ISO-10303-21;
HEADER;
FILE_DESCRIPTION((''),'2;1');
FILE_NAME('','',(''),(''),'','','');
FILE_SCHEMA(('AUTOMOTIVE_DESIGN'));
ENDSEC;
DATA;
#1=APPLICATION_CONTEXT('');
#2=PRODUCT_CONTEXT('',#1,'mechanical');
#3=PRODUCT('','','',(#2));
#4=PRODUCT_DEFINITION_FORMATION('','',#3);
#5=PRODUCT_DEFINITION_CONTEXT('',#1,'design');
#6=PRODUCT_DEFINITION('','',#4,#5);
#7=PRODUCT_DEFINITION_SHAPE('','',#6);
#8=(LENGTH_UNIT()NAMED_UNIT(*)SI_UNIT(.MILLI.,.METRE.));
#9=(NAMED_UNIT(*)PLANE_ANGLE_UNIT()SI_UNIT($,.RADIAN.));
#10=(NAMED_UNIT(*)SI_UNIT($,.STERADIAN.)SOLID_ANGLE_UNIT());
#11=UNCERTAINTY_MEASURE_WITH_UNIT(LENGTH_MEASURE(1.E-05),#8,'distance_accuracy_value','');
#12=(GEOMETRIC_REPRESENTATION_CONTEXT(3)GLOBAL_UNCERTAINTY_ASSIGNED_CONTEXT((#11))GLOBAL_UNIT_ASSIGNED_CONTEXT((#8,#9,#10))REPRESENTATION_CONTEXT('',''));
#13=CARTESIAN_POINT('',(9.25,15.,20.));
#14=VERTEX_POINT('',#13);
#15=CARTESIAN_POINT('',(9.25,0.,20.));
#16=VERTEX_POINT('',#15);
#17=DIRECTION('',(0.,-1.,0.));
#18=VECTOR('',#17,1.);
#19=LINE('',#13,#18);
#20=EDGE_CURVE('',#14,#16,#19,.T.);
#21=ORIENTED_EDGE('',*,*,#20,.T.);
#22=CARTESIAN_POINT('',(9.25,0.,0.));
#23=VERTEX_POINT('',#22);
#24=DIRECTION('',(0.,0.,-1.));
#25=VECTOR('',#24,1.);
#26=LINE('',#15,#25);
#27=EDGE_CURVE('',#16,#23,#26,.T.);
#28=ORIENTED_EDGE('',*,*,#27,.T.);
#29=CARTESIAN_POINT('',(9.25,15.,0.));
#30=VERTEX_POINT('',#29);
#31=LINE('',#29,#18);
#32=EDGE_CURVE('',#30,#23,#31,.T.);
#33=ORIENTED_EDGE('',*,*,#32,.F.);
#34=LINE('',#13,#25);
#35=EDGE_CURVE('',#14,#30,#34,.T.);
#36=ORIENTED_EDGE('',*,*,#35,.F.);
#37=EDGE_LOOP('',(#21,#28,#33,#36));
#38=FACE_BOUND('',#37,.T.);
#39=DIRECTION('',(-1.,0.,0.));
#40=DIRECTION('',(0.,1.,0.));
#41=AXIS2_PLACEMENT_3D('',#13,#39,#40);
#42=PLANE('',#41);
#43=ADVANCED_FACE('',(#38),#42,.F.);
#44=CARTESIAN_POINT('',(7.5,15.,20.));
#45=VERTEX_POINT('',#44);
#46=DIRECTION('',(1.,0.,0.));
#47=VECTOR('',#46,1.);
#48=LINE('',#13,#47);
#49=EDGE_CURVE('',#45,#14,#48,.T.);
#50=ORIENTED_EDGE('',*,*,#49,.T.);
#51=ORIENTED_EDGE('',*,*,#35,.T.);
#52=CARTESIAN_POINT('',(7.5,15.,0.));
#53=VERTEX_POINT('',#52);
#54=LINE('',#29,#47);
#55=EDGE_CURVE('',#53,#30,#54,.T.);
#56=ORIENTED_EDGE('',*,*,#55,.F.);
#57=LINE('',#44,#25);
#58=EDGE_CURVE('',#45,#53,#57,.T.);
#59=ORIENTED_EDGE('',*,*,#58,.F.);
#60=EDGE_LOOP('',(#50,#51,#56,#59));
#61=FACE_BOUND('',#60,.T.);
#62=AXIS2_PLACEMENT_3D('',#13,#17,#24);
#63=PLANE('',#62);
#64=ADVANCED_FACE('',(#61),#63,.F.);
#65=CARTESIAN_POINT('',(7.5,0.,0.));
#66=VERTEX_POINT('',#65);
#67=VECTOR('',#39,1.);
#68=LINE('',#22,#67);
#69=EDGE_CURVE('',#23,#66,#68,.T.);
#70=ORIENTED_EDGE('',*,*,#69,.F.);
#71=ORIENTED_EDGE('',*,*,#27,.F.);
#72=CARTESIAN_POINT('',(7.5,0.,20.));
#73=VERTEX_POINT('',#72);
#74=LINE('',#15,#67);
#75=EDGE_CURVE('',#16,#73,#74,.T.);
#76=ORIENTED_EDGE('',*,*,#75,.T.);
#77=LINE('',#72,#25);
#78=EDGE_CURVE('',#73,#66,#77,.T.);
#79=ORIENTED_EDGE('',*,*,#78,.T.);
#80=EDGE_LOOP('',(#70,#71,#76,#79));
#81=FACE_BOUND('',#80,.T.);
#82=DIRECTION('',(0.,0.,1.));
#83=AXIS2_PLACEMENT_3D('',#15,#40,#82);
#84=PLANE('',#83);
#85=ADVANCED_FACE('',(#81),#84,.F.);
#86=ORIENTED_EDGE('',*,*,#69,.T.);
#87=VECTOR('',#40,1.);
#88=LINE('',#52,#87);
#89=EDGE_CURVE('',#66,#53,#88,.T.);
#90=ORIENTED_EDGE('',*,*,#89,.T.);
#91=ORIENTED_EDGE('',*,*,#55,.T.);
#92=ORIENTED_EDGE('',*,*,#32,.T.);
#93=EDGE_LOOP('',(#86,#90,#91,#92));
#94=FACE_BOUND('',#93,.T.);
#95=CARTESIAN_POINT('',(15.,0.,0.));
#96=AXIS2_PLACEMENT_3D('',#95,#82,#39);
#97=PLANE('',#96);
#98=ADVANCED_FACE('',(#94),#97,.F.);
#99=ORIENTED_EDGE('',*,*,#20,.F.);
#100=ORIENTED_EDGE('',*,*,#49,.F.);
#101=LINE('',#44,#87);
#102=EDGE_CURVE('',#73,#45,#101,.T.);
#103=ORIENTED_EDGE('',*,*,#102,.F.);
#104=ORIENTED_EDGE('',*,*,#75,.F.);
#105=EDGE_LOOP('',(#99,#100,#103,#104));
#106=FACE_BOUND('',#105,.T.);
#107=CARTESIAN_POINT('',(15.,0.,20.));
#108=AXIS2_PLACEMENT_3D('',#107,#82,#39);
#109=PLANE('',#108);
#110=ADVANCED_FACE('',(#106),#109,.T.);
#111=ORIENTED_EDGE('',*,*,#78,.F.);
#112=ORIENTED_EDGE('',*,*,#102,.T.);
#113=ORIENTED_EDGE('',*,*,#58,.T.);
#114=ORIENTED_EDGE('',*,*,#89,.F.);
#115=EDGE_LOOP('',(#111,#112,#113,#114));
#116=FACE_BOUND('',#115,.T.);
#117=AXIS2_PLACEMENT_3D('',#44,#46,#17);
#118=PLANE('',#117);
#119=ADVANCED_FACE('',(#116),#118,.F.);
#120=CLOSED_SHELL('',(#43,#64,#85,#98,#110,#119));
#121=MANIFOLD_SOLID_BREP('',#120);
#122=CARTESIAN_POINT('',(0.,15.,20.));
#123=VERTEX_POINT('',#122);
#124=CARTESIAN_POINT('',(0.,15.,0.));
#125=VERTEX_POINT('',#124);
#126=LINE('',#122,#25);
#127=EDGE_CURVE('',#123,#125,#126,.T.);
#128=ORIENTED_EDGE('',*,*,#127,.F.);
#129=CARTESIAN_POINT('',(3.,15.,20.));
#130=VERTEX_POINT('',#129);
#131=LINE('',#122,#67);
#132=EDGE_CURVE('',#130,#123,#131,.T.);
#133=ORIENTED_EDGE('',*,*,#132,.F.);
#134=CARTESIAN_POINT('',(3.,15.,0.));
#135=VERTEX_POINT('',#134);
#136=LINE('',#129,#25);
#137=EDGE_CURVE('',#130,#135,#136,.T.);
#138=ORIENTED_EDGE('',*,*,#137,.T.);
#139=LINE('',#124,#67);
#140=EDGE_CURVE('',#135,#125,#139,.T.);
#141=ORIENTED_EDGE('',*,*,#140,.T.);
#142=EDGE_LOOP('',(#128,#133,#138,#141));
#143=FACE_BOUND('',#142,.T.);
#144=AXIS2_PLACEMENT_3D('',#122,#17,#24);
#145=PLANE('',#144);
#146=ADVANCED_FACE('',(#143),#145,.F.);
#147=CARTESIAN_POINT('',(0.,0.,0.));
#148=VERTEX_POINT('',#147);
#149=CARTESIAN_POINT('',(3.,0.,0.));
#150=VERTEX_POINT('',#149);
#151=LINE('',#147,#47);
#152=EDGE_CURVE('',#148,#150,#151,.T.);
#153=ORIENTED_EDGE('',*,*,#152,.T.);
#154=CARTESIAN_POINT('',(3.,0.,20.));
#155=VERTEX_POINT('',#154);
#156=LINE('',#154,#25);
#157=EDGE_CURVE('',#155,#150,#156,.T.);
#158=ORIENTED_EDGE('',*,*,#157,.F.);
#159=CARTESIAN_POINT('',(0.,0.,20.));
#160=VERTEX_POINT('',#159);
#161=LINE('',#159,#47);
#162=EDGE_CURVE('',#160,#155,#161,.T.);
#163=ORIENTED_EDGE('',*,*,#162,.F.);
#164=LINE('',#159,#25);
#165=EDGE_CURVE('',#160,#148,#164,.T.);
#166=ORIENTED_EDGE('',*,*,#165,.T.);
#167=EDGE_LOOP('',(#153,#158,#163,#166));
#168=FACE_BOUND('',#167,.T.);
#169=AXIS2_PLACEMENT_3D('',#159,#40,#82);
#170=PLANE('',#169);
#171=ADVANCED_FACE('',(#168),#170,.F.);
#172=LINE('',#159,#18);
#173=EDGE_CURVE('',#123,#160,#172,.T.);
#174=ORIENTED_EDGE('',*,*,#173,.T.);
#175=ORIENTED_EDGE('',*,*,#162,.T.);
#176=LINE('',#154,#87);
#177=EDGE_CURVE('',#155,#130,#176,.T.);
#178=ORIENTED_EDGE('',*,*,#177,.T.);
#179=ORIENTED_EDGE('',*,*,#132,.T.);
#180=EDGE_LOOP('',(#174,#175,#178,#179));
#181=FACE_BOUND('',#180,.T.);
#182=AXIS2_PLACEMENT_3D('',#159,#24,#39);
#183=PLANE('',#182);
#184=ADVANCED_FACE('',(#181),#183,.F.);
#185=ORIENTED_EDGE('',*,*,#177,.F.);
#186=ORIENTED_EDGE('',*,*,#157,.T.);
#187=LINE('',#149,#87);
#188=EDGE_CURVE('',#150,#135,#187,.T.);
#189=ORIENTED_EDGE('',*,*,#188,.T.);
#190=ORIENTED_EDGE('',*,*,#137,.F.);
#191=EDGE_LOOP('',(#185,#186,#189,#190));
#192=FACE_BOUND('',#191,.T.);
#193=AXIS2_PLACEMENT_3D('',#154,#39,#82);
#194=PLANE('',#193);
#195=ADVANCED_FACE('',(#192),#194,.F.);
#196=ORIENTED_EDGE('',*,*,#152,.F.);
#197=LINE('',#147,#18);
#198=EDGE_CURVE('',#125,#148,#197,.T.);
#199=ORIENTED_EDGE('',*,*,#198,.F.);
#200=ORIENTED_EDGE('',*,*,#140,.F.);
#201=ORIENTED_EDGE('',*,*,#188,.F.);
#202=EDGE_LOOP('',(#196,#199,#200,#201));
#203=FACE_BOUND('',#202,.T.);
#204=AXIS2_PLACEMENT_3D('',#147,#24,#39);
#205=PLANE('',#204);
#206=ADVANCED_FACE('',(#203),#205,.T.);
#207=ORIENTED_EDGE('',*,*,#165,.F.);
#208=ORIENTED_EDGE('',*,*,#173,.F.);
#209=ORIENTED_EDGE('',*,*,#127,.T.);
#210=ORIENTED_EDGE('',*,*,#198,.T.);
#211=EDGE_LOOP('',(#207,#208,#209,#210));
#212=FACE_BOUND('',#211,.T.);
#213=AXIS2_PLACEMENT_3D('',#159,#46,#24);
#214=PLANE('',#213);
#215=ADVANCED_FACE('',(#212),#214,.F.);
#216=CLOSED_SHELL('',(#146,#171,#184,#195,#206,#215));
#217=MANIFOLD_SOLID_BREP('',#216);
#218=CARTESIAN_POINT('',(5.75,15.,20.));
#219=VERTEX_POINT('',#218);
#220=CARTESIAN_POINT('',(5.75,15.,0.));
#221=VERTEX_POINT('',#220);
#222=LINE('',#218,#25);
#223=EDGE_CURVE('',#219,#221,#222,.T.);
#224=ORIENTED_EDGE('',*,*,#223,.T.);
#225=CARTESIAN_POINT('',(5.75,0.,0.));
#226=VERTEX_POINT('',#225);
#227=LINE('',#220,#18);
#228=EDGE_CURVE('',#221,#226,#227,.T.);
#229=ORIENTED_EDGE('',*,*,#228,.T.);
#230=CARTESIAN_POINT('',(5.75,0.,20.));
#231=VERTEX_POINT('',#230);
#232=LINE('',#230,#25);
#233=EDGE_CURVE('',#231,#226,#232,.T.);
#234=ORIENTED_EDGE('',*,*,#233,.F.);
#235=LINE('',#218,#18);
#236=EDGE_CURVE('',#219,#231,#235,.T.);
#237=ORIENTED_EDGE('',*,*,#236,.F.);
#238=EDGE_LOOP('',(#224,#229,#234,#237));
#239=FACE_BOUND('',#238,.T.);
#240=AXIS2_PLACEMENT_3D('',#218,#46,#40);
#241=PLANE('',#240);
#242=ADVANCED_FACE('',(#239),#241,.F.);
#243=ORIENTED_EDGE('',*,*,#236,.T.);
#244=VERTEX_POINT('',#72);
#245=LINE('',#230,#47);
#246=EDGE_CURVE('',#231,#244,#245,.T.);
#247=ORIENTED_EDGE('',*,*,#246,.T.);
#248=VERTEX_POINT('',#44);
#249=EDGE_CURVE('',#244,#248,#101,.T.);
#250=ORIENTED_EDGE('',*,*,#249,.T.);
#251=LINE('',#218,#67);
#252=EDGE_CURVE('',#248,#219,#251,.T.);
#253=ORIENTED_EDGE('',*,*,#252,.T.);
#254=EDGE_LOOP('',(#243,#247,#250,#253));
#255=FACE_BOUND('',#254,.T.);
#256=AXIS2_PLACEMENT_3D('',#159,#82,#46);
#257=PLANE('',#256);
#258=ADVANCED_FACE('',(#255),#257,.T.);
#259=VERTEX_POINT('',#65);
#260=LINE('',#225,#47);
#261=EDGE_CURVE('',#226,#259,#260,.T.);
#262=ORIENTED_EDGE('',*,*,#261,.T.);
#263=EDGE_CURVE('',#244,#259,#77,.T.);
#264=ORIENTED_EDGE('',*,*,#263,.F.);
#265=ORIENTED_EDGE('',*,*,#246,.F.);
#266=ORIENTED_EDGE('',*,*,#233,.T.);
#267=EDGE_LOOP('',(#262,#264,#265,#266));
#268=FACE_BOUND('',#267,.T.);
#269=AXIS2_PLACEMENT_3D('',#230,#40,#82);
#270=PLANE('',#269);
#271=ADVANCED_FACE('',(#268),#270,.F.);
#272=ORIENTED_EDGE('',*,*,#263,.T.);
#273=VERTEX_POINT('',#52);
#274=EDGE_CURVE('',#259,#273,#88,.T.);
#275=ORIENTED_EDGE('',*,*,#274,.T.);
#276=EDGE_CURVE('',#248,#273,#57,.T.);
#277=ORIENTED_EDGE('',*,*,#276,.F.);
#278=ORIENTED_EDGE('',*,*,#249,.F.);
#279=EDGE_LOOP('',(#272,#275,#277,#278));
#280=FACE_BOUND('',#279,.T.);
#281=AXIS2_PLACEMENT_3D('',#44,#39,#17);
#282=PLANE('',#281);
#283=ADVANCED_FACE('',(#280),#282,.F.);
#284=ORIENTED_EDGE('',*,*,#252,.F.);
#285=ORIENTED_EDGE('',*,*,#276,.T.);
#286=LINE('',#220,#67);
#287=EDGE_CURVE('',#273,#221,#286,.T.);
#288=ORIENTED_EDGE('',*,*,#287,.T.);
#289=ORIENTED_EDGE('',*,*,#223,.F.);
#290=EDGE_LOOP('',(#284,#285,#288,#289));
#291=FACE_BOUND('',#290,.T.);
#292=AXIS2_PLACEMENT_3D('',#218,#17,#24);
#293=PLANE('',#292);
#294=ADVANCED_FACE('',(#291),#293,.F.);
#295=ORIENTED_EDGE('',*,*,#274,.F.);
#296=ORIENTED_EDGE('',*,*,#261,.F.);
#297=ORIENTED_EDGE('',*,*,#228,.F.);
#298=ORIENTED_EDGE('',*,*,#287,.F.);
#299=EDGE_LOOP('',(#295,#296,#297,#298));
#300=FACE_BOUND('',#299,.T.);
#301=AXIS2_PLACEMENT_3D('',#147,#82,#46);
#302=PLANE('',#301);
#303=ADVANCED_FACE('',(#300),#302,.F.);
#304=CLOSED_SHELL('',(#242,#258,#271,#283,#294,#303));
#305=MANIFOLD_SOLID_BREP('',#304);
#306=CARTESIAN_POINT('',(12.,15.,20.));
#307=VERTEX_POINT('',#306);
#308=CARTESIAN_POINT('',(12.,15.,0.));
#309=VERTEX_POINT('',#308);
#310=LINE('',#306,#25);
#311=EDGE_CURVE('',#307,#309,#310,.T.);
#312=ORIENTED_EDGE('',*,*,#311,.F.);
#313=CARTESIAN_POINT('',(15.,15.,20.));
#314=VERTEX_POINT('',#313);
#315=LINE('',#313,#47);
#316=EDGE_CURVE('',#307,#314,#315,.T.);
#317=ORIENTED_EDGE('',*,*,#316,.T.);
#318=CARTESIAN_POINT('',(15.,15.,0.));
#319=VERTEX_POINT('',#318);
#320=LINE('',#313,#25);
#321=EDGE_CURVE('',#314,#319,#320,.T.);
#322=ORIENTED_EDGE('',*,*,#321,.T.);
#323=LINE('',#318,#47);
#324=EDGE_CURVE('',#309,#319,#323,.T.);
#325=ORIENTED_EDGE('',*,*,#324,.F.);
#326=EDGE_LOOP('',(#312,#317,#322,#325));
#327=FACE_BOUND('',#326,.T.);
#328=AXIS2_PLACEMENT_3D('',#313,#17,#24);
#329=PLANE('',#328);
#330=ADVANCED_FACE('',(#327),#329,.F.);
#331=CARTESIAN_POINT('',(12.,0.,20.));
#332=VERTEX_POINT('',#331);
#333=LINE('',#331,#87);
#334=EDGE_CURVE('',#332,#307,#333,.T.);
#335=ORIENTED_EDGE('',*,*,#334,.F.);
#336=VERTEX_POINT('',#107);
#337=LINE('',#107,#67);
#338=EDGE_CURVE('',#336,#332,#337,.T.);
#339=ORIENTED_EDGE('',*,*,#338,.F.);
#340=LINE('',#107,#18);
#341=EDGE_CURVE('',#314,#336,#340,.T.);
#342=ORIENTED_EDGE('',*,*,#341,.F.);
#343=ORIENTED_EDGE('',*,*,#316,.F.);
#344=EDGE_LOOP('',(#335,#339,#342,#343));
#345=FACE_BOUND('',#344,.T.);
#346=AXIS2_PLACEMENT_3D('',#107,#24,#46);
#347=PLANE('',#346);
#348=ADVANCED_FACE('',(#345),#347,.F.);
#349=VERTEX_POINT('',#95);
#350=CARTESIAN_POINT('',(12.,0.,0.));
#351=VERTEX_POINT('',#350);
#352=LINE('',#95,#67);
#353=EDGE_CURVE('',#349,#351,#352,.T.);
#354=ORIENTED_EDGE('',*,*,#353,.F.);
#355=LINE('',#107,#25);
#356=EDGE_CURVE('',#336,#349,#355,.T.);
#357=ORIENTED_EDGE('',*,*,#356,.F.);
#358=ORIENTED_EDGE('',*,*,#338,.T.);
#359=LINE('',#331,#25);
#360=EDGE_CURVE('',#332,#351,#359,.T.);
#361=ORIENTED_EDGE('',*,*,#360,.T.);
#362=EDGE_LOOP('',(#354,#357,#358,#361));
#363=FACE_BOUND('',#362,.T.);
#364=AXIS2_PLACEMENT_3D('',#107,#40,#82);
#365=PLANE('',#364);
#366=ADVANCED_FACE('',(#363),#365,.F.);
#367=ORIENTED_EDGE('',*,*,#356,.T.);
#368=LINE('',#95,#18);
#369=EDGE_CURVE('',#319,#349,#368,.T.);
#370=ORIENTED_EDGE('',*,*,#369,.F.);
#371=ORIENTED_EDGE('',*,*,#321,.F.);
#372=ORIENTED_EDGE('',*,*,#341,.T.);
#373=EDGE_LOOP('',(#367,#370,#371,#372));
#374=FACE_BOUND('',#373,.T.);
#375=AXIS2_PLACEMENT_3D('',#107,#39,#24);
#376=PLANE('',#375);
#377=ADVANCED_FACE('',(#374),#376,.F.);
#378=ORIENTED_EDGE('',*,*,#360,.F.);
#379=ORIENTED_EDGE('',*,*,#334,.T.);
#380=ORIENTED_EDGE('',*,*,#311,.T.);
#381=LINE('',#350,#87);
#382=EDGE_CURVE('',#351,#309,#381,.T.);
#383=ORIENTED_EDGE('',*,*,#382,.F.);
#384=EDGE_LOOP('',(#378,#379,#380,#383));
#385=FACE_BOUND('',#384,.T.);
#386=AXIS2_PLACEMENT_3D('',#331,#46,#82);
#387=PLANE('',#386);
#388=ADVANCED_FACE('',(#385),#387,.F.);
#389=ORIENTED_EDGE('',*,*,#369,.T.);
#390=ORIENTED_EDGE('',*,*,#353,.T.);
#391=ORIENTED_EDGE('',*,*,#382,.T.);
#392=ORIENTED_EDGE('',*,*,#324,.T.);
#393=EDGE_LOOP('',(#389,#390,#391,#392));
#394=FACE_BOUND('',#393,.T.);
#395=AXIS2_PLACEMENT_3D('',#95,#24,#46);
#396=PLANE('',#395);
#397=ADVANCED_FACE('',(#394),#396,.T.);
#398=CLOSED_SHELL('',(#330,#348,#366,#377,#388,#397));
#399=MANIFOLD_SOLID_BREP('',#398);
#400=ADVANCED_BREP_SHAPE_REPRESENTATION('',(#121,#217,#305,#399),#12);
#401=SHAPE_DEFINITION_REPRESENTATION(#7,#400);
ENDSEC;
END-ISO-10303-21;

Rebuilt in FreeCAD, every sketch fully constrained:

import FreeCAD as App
import Part
import Sketcher

V = App.Vector
Q = App.Units.Quantity


def add_polygon(sketch, points):
    """Adds a closed chain of lines whose ends are joined by coincident constraints."""
    first, n = sketch.GeometryCount, len(points)
    for a, b in zip(points, points[1:] + points[:1]):
        sketch.addGeometry(Part.LineSegment(App.Vector(*a, 0), App.Vector(*b, 0)), False)
    for i in range(n):
        sketch.addConstraint(Sketcher.Constraint("Coincident", first + i, 2, first + (i + 1) % n, 1))

doc = App.newDocument("Part")
body = doc.addObject("PartDesign::Body", "Body")

# Sketch on XY plane
sketch1 = body.newObject("Sketcher::SketchObject", "Sketch")
sketch1.AttachmentSupport = (doc.getObject("XY_Plane"), [""])
sketch1.MapMode = "FlatFace"
add_polygon(sketch1, [(0, 15), (0, 0), (3, 0), (3, 15)])  # lines 0-3
sketch1.addConstraint(Sketcher.Constraint("Vertical", 0))
sketch1.addConstraint(Sketcher.Constraint("Horizontal", 1))
sketch1.addConstraint(Sketcher.Constraint("Vertical", 2))
sketch1.addConstraint(Sketcher.Constraint("Horizontal", 3))
sketch1.addConstraint(Sketcher.Constraint("Coincident", 0, 2, -1, 1))
sketch1.addConstraint(Sketcher.Constraint("DistanceX", 1, 1, 1, 2, Q("3 mm")))
sketch1.addConstraint(Sketcher.Constraint("DistanceY", 0, 2, 0, 1, Q("15 mm")))
pad1 = body.newObject("PartDesign::Pad", "Pad")
pad1.Profile = sketch1
pad1.Length = 20
body2 = doc.addObject("PartDesign::Body", "Body001")

# Sketch on XY plane
sketch2 = body2.newObject("Sketcher::SketchObject", "Sketch001")
sketch2.AttachmentSupport = (doc.getObject("XY_Plane001"), [""])
sketch2.MapMode = "FlatFace"
add_polygon(sketch2, [(5.8, 15), (5.8, 0), (7.5, 0), (7.5, 15)])  # lines 0-3
sketch2.addConstraint(Sketcher.Constraint("Vertical", 0))
sketch2.addConstraint(Sketcher.Constraint("Horizontal", 1))
sketch2.addConstraint(Sketcher.Constraint("Vertical", 2))
sketch2.addConstraint(Sketcher.Constraint("Horizontal", 3))
sketch2.addConstraint(Sketcher.Constraint("PointOnObject", 0, 2, -1))
sketch2.addConstraint(Sketcher.Constraint("DistanceY", 0, 2, 0, 1, Q("15 mm")))
sketch2.addConstraint(Sketcher.Constraint("DistanceX", 1, 1, 1, 2, Q("1.75 mm")))
sketch2.addConstraint(Sketcher.Constraint("DistanceX", -1, 1, 1, 2, Q("7.5 mm")))
pad2 = body2.newObject("PartDesign::Pad", "Pad001")
pad2.Profile = sketch2
pad2.Length = 20
body3 = doc.addObject("PartDesign::Body", "Body002")
doc.recompute()

mirroring = doc.addObject("Part::Mirroring", "Mirroring")
mirroring.Source = body2
mirroring.Base = V(7.5, 15, 20)
mirroring.Normal = V(-1, 0, 0)
body3.BaseFeature = mirroring
doc.recompute()
body4 = doc.addObject("PartDesign::Body", "Body003")
doc.recompute()

mirroring2 = doc.addObject("Part::Mirroring", "Mirroring001")
mirroring2.Source = body
mirroring2.Base = V(7.5, 15, 20)
mirroring2.Normal = V(-1, 0, 0)
body4.BaseFeature = mirroring2
doc.recompute()
mirroring.Visibility = False
mirroring2.Visibility = False

doc.recompute()
